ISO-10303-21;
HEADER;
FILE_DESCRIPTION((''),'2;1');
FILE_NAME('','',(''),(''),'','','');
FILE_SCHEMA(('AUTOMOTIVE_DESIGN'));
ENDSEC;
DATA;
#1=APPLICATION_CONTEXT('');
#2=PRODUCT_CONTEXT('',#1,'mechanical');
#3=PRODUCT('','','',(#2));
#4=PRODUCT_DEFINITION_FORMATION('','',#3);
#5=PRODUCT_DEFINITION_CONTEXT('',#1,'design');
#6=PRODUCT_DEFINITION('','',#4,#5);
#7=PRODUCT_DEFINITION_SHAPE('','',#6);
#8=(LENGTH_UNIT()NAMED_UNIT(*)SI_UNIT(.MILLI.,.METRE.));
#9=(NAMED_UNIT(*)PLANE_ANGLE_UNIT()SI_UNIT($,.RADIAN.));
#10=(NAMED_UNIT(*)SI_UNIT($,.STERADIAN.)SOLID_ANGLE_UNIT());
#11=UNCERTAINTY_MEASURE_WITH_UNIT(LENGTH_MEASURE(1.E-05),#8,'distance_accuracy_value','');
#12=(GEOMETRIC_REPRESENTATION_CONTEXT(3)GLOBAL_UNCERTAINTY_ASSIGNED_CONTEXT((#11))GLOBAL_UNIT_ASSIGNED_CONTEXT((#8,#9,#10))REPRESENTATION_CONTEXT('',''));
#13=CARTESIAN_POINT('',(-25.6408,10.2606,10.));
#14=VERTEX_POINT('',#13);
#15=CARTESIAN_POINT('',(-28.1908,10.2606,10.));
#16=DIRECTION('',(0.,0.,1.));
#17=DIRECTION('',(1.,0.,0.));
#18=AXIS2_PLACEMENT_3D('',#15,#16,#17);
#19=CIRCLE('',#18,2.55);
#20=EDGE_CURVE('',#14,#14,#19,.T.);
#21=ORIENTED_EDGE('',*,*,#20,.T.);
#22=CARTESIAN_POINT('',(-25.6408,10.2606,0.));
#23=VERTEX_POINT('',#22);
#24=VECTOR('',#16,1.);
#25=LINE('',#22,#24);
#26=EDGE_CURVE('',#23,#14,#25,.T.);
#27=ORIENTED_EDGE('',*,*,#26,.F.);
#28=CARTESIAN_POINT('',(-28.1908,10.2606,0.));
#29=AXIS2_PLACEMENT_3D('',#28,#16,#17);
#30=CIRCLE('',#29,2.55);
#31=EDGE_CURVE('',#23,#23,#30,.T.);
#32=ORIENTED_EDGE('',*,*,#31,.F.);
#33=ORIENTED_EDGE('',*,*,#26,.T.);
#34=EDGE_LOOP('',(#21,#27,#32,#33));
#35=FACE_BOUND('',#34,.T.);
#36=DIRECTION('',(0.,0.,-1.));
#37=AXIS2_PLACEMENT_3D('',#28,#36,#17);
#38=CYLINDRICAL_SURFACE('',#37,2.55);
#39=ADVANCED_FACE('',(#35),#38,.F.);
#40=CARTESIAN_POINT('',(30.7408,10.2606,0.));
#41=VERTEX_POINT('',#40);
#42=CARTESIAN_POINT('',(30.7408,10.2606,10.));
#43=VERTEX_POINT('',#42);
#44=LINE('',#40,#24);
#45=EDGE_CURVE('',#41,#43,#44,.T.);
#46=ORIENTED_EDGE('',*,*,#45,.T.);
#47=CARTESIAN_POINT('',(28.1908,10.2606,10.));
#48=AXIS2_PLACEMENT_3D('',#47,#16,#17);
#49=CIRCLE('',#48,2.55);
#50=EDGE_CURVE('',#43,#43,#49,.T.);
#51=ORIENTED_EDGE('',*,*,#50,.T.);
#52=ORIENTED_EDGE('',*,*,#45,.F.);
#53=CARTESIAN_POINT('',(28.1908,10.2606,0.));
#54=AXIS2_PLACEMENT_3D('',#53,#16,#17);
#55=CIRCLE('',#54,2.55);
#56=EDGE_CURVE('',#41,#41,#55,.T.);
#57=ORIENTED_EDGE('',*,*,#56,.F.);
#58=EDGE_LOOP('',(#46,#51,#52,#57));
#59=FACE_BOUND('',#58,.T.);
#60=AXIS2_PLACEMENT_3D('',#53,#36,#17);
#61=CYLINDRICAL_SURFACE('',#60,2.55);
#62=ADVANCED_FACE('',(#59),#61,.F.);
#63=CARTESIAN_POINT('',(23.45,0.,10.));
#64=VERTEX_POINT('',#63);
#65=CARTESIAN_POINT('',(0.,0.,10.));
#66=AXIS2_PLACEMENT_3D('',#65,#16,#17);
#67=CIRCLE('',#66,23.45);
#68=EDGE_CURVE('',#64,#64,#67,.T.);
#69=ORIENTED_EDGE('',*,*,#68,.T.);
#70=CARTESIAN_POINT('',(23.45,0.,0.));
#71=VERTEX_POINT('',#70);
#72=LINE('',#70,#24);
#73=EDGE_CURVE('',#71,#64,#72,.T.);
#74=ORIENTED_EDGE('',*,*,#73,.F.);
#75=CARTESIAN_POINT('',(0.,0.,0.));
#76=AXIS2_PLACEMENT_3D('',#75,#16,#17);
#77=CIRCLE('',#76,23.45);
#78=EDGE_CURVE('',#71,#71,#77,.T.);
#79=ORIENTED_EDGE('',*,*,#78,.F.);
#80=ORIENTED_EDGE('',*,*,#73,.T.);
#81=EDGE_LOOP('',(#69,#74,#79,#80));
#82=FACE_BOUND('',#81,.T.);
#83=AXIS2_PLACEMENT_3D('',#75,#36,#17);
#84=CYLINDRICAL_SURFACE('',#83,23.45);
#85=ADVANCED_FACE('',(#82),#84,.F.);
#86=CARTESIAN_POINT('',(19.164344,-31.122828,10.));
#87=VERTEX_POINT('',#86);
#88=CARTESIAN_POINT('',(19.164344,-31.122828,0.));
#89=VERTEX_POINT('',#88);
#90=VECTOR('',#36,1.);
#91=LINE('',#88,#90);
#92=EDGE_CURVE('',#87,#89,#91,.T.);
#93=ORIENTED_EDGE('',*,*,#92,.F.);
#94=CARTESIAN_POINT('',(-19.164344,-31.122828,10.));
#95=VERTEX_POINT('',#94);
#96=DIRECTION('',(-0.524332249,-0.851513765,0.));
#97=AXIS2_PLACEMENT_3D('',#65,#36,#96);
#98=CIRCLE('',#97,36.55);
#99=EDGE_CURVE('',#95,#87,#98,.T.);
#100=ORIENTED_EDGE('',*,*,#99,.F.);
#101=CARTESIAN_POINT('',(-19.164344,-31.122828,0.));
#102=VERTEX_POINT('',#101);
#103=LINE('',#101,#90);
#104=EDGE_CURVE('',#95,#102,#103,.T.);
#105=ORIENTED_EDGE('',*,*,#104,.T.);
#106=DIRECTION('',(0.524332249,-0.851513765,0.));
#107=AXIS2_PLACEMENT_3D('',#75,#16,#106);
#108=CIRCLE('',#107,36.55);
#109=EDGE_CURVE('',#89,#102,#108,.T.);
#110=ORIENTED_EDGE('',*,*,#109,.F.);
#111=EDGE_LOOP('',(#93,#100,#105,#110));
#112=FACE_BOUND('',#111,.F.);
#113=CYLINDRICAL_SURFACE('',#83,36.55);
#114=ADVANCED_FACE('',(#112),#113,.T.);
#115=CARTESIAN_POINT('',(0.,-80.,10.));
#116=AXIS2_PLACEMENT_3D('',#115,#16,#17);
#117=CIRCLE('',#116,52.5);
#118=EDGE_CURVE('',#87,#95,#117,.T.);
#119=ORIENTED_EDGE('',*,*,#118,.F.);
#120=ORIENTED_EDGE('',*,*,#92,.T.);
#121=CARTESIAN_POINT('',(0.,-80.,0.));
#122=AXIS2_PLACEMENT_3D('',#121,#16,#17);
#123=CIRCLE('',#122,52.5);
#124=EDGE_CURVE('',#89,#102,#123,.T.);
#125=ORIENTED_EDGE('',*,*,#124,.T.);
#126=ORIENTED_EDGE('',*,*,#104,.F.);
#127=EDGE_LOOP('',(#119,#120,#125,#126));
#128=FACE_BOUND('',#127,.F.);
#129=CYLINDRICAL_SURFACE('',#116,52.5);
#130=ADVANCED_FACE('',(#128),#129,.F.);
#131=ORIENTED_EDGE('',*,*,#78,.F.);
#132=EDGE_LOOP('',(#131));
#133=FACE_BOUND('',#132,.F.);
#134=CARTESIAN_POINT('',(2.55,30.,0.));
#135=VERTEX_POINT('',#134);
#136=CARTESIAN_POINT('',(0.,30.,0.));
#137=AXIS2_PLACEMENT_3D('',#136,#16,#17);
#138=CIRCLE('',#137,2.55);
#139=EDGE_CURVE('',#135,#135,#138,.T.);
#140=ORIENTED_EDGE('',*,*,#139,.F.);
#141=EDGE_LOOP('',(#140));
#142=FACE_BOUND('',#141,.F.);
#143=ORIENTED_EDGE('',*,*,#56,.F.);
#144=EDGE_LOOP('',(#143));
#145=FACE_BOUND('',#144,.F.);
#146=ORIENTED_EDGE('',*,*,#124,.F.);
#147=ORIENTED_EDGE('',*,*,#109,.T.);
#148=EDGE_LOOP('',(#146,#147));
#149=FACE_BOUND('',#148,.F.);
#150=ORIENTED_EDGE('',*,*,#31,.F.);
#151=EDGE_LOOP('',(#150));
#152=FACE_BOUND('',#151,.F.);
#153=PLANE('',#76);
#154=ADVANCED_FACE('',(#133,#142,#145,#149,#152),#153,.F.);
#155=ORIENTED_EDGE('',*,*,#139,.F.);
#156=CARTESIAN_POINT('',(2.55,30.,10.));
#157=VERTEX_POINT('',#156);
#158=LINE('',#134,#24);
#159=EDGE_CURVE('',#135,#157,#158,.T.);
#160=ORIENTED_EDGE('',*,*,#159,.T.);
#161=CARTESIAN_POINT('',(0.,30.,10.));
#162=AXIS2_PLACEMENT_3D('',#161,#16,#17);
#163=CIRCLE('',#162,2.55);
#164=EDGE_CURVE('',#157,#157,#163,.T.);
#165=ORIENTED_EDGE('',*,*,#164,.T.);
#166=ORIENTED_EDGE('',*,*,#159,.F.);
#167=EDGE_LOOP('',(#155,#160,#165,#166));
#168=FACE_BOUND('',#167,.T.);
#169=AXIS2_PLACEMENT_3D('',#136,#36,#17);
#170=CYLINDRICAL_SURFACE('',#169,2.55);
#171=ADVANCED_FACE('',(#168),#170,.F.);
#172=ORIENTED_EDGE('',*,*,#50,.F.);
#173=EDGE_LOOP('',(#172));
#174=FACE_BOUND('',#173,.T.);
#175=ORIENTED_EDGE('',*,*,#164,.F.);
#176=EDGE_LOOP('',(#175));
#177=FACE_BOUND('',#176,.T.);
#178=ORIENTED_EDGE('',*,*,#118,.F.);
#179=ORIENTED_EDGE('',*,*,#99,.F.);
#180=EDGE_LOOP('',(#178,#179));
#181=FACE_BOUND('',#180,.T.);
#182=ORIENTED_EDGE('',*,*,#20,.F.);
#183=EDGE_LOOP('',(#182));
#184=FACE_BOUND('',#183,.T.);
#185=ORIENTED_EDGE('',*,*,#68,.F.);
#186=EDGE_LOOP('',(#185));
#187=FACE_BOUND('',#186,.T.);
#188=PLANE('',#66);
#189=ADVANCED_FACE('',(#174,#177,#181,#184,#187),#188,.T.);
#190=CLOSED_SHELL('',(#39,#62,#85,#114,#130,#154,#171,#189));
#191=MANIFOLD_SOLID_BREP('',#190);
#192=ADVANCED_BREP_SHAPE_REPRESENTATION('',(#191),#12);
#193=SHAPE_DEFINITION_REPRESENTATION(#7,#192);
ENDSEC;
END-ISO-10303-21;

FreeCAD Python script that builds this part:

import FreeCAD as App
import Part
import Sketcher

V = App.Vector
Q = App.Units.Quantity

doc = App.newDocument("Part")
body = doc.addObject("PartDesign::Body", "Body")

# Sketch on XY plane
sketch1 = body.newObject("Sketcher::SketchObject", "Sketch")
sketch1.AttachmentSupport = (doc.getObject("XY_Plane"), [""])
sketch1.MapMode = "FlatFace"
sketch1.addGeometry([
    Part.Circle(V(0, 0, 0), V(0, 0, 1), 36.5),  # 0
    Part.Circle(V(-28.2, 10.3, 0), V(0, 0, 1), 2.5),  # 1
    Part.Circle(V(0, 0, 0), V(0, 0, 1), 23.4),  # 2
    Part.Circle(V(28.2, 10.3, 0), V(0, 0, 1), 2.5),  # 3
    Part.Circle(V(0, 30, 0), V(0, 0, 1), 2.5),  # 4
], False)
sketch1.addConstraint([
    Sketcher.Constraint("Coincident", 0, 3, -1, 1),
    Sketcher.Constraint("Coincident", 2, 3, -1, 1),
    Sketcher.Constraint("Equal", 1, 3),
    Sketcher.Constraint("Equal", 3, 4),
    Sketcher.Constraint("Symmetric", 1, 3, 3, 3, -2),
    Sketcher.Constraint("PointOnObject", 4, 3, -2),
    Sketcher.Constraint("Diameter", 0, Q("73.1 mm")),
    Sketcher.Constraint("Diameter", 1, Q("5.1 mm")),
    Sketcher.Constraint("Diameter", 2, Q("46.9 mm")),
    Sketcher.Constraint("DistanceY", -1, 1, 4, 3, Q("30 mm")),
    Sketcher.Constraint("DistanceX", 1, 3, -1, 1, Q("28.1908 mm")),
    Sketcher.Constraint("DistanceY", -1, 1, 1, 3, Q("10.2606 mm")),
])
pad1 = body.newObject("PartDesign::Pad", "Pad")
pad1.Profile = sketch1
pad1.Length = 10

# Sketch on XY plane
sketch2 = body.newObject("Sketcher::SketchObject", "Sketch001")
sketch2.AttachmentSupport = (doc.getObject("XY_Plane"), [""])
sketch2.MapMode = "FlatFace"
sketch2.AttachmentOffset = App.Placement(V(0, 0, 10), App.Rotation())
sketch2.addGeometry(Part.Circle(V(0, -80, 0), V(0, 0, 1), 52), False)
sketch2.addConstraint([
    Sketcher.Constraint("PointOnObject", 0, 3, -2),
    Sketcher.Constraint("Diameter", 0, Q("105 mm")),
    Sketcher.Constraint("DistanceY", 0, 3, -1, 1, Q("80 mm")),
])
pocket1 = body.newObject("PartDesign::Pocket", "Pocket")
pocket1.Profile = sketch2
pocket1.Length = 10

doc.recompute()
